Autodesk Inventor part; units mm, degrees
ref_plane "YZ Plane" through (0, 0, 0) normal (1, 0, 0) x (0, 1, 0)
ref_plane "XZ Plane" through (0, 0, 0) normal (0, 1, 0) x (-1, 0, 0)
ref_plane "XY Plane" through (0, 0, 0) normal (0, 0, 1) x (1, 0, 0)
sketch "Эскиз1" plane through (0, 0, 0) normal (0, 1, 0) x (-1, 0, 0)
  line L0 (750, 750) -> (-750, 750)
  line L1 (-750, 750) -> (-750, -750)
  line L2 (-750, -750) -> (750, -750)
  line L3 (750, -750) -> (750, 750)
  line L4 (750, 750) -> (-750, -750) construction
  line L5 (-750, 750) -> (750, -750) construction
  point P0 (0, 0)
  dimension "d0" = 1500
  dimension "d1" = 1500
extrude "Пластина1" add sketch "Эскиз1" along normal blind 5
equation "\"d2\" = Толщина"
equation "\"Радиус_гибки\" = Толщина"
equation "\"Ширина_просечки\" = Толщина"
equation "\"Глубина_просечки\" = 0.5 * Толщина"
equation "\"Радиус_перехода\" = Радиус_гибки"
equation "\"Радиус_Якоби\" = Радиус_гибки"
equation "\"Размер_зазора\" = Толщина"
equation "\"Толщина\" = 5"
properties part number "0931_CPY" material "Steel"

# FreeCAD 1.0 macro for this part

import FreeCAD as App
import Part
import Sketcher


def add_polygon(sketch, points):
    """Adds a closed chain of lines whose ends are joined by coincident constraints."""
    first, n = sketch.GeometryCount, len(points)
    for a, b in zip(points, points[1:] + points[:1]):
        sketch.addGeometry(Part.LineSegment(App.Vector(*a, 0), App.Vector(*b, 0)), False)
    for i in range(n):
        sketch.addConstraint(Sketcher.Constraint("Coincident", first + i, 2, first + (i + 1) % n, 1))

doc = App.newDocument("Part")
params = doc.addObject("Spreadsheet::Sheet", "Params")
for row, (alias, value) in enumerate([
    ("sketch1_width", "1500 mm"),
    ("pad1_length", "5 mm"),
], start=1):
    params.set(f"A{row}", alias)
    params.set(f"B{row}", "=" + value)
    params.setAlias(f"B{row}", alias)

body = doc.addObject("PartDesign::Body", "Body")

sketch1 = doc.addObject("Sketcher::SketchObject", "Sketch")
body.addObject(sketch1)
sketch1.AttachmentSupport = (doc.XZ_Plane, [""])
sketch1.MapMode = "FlatFace"
add_polygon(sketch1, [(-750, -750), (-750, 750), (750, 750), (750, -750)])
sketch1.addConstraint([
    Sketcher.Constraint("Vertical", 0),
    Sketcher.Constraint("Horizontal", 1),
    Sketcher.Constraint("Vertical", 2),
    Sketcher.Constraint("Horizontal", 3),
    Sketcher.Constraint("Symmetric", 0, 2, 2, 2, -1, 1),
    Sketcher.Constraint("Equal", 3, 0),
    Sketcher.Constraint("DistanceX", 1, 1, 1, 2, 1500.0),
])
sketch1.setExpression("Constraints[10]", "Params.sketch1_width")
pad1 = doc.addObject("PartDesign::Pad", "Pad")
body.addObject(pad1)
pad1.Profile = sketch1
pad1.setExpression("Length", "Params.pad1_length")
pad1.Reversed = True

doc.recompute()
